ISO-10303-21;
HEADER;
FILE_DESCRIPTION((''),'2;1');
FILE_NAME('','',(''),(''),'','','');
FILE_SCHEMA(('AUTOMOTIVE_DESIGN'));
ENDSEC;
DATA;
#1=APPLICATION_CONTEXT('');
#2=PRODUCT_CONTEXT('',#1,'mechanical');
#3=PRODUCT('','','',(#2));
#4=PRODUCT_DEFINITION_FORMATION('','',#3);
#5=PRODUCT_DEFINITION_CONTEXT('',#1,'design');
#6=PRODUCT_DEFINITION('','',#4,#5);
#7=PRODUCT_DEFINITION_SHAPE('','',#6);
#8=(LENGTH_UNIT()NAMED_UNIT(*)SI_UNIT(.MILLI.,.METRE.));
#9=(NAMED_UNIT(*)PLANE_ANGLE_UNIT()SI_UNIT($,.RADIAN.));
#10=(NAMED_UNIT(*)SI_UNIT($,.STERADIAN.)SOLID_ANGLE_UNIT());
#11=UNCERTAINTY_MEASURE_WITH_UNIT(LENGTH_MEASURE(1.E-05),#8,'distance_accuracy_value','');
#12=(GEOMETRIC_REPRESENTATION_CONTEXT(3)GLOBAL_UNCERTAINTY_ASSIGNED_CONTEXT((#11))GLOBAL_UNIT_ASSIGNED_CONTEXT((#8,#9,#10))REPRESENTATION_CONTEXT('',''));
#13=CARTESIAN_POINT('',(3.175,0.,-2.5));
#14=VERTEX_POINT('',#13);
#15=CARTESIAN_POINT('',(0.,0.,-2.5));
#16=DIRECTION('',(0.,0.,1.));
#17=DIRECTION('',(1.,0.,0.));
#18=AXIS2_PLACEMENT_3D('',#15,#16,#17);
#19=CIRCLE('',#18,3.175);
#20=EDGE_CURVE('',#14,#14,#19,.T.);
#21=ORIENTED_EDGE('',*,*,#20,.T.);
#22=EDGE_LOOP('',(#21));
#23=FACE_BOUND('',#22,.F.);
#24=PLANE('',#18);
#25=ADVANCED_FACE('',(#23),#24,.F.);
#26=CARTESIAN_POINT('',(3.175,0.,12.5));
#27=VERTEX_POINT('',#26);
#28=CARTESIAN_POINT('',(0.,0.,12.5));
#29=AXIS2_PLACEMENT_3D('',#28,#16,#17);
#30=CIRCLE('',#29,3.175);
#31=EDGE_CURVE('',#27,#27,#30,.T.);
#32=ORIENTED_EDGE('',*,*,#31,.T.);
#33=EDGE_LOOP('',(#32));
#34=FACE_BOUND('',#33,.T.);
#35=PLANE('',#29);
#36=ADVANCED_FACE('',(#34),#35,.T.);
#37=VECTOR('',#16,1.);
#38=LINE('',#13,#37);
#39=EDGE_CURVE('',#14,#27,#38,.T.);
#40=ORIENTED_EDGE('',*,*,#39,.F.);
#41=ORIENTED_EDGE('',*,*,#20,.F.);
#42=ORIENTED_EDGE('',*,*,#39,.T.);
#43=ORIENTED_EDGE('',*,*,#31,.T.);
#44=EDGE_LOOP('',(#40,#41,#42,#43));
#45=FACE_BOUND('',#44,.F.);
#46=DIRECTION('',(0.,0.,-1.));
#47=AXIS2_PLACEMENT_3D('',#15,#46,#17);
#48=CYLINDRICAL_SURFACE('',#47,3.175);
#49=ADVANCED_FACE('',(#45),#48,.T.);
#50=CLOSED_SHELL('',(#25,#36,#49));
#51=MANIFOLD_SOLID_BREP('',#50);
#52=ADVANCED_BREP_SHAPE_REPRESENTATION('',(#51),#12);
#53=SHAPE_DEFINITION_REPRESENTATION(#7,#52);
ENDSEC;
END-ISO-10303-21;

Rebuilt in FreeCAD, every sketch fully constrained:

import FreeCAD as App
import Part
import Sketcher
Q = App.Units.Quantity

doc = App.newDocument("Part")
body = doc.addObject("PartDesign::Body", "Body")

sketch1 = body.newObject("Sketcher::SketchObject", "Sketch")
sketch1.AttachmentSupport = (doc.getObject("XY_Plane"), [""])
sketch1.MapMode = "FlatFace"
sketch1.AttachmentOffset = App.Placement(App.Vector(0, 0, -2.5), App.Rotation())
sketch1.addGeometry(Part.Circle(App.Vector(0, 0, 0), App.Vector(0, 0, 1), 3.2), False)
sketch1.addConstraint([
    Sketcher.Constraint("Coincident", 0, 3, -1, 1),
    Sketcher.Constraint("Diameter", 0, Q("6.35 mm")),
])
pad1 = body.newObject("PartDesign::Pad", "Pad")
pad1.Profile = sketch1
pad1.Length = 15

doc.recompute()
